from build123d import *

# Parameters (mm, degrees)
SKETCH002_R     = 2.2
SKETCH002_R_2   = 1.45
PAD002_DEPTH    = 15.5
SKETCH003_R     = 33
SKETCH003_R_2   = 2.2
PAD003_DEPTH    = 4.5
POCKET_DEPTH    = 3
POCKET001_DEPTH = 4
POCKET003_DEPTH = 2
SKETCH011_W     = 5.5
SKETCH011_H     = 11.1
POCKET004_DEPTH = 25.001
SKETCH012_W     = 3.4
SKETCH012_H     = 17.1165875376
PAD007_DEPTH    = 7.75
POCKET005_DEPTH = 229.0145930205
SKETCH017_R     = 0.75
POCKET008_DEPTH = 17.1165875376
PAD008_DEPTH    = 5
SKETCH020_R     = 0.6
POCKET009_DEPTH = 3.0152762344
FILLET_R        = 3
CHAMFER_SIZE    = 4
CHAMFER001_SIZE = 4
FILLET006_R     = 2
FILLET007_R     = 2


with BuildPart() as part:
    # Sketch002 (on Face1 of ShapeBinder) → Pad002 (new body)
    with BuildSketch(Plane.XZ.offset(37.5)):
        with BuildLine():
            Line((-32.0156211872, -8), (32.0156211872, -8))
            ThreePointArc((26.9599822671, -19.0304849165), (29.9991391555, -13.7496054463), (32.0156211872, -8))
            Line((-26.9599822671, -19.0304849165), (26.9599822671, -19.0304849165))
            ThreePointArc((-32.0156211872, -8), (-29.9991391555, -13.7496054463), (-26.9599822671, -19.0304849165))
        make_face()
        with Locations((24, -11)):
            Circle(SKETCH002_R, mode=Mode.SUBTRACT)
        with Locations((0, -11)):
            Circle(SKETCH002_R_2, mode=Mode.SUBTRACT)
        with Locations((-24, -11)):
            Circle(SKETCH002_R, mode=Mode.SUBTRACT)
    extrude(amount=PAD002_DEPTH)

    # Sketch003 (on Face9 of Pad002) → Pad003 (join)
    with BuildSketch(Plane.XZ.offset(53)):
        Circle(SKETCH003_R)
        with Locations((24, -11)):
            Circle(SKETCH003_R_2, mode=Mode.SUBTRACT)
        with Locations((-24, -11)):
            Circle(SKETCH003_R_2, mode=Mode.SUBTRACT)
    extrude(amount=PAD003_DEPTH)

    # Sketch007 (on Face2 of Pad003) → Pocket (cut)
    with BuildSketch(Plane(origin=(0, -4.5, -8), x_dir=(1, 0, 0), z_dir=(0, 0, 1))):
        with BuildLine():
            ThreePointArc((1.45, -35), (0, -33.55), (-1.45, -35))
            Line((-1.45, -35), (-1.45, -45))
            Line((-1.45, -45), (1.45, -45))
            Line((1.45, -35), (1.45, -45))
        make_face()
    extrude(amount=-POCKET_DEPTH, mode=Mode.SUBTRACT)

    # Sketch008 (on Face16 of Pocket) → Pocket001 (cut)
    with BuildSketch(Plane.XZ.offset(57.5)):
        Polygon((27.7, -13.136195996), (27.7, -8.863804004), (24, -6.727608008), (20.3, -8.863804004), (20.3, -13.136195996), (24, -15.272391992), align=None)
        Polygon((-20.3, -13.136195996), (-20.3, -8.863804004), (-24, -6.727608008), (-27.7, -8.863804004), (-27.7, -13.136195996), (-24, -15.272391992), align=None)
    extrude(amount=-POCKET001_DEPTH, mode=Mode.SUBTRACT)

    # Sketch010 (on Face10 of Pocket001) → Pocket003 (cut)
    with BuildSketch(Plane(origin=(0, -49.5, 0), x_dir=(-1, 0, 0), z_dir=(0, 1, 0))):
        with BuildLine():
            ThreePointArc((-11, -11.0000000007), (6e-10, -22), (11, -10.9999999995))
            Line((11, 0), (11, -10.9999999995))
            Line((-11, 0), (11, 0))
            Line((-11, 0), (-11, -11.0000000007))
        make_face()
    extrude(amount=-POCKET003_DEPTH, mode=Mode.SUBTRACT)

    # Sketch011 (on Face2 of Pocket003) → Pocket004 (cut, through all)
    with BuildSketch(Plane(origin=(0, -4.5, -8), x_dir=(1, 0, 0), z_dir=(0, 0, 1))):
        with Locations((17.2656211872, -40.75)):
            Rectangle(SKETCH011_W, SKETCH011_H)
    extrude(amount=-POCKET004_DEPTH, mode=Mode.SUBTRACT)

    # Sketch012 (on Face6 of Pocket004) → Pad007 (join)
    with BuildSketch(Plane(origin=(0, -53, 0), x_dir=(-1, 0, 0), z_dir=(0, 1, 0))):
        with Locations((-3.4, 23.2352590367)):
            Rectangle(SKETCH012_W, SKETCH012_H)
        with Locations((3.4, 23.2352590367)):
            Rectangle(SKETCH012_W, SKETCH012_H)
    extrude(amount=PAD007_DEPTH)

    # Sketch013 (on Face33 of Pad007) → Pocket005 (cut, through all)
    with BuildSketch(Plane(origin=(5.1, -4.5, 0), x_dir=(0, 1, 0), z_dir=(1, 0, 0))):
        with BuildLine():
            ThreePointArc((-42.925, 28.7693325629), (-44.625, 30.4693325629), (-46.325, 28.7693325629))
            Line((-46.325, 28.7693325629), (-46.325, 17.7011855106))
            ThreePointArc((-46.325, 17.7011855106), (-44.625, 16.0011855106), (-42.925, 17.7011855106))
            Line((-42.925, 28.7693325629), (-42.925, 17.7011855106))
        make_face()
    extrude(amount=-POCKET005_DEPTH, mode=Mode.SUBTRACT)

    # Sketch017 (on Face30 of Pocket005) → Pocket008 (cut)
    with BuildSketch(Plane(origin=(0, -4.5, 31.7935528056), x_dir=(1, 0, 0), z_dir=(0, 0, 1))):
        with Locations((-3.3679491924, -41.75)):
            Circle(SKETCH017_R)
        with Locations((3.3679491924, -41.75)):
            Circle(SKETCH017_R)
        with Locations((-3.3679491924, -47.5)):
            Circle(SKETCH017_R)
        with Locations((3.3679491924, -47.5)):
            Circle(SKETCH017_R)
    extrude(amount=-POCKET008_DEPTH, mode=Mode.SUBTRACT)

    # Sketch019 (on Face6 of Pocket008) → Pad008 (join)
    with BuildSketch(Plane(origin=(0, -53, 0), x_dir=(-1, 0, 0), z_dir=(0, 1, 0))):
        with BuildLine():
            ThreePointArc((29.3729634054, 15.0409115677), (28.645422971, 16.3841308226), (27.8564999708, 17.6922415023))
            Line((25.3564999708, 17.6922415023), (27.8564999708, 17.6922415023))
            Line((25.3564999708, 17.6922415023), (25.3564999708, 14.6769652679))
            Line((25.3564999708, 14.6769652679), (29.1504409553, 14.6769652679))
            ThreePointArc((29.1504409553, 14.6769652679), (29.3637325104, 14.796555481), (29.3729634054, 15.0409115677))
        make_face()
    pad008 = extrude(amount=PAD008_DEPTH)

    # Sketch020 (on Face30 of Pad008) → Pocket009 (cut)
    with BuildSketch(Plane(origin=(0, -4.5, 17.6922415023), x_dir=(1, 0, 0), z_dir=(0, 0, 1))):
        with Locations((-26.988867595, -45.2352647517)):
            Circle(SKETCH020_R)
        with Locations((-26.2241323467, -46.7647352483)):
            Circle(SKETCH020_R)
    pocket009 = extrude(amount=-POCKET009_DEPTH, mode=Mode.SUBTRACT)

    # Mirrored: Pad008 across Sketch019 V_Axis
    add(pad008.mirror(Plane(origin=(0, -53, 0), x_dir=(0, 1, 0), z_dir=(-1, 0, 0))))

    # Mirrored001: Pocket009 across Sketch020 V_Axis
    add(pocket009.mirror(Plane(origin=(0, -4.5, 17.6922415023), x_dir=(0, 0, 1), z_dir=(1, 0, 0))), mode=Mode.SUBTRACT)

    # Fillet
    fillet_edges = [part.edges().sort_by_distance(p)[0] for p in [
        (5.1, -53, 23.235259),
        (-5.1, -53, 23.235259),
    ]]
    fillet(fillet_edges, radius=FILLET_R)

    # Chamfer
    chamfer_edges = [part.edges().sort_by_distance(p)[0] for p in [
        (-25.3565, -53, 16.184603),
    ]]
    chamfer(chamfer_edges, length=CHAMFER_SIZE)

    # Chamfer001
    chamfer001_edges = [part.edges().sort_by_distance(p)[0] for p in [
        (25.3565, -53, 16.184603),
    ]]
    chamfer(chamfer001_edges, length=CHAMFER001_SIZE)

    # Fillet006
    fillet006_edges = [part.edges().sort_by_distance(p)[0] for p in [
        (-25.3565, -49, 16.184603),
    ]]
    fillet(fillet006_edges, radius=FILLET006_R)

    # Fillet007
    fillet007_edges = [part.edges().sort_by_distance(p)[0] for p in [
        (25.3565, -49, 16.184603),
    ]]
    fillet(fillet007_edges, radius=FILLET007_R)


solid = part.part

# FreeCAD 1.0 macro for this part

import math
import FreeCAD as App
import Part
import Sketcher

V = App.Vector
Q = App.Units.Quantity


def edges_at(feature, points):
    """Names of the edges that pass closest to the given points."""
    edges = feature.Shape.Edges
    near = lambda p: min(range(len(edges)), key=lambda i: edges[i].distToShape(Part.Vertex(*p))[0])
    return sorted({f"Edge{near(p) + 1}" for p in points})

doc = App.newDocument("Part")
body = doc.addObject("PartDesign::Body", "Body")

# Sketch on XZ plane
sketch1 = doc.addObject("Sketcher::SketchObject", "Sketch")
body.addObject(sketch1)
sketch1.AttachmentSupport = (doc.XZ_Plane, [""])
sketch1.MapMode = "FlatFace"
sketch1.AttachmentOffset = App.Placement(V(0, 0, 37.5), App.Rotation())
sketch1.addGeometry([
    Part.LineSegment(V(32, -8, 0), V(-32, -8, 0)),  # 0
    Part.ArcOfCircle(Part.Circle(V(0, 0, 0), V(0, 0, 1), 33), math.radians(-166), math.radians(-145)),  # 1
    Part.LineSegment(V(-27, -19, 0), V(27, -19, 0)),  # 2
    Part.ArcOfCircle(Part.Circle(V(0, 0, 0), V(0, 0, 1), 33), math.radians(-35), math.radians(-14)),  # 3
    Part.Circle(V(24, -11, 0), V(0, 0, 1), 2.2),  # 4
    Part.Circle(V(0, -11, 0), V(0, 0, 1), 1.4),  # 5
    Part.Circle(V(-24, -11, 0), V(0, 0, 1), 2.2),  # 6
], False)
sketch1.addConstraint([
    Sketcher.Constraint("Coincident", 0, 2, 1, 1),
    Sketcher.Constraint("Coincident", 1, 2, 2, 1),
    Sketcher.Constraint("Coincident", 2, 2, 3, 1),
    Sketcher.Constraint("Coincident", 3, 2, 0, 1),
    Sketcher.Constraint("Horizontal", 0),
    Sketcher.Constraint("Horizontal", 2),
    Sketcher.Constraint("Coincident", 1, 3, -1, 1),
    Sketcher.Constraint("Coincident", 3, 3, -1, 1),
    Sketcher.Constraint("Equal", 1, 3),
    Sketcher.Constraint("Equal", 4, 6),
    Sketcher.Constraint("Symmetric", 4, 3, 6, 3, -2),
    Sketcher.Constraint("PointOnObject", 5, 3, -2),
    Sketcher.Constraint("Horizontal", 4, 3, 5, 3),
    Sketcher.Constraint("Radius", 1, Q("33 mm")),
    Sketcher.Constraint("Diameter", 4, Q("4.4 mm")),
    Sketcher.Constraint("Diameter", 5, Q("2.9 mm")),
    Sketcher.Constraint("DistanceX", -1, 1, 4, 3, Q("24 mm")),
    Sketcher.Constraint("DistanceY", 4, 3, -1, 1, Q("11 mm")),
    Sketcher.Constraint("DistanceY", 0, 2, -1, 1, Q("8 mm")),
    Sketcher.Constraint("DistanceX", 2, 1, 2, 2, Q("53.919965 mm")),
])
pad1 = doc.addObject("PartDesign::Pad", "Pad")
body.addObject(pad1)
pad1.Profile = sketch1
pad1.Length = 15.5

# Sketch on XZ plane
sketch2 = doc.addObject("Sketcher::SketchObject", "Sketch001")
body.addObject(sketch2)
sketch2.AttachmentSupport = (doc.XZ_Plane, [""])
sketch2.MapMode = "FlatFace"
sketch2.AttachmentOffset = App.Placement(V(0, 0, 53), App.Rotation())
sketch2.addGeometry([
    Part.Circle(V(0, 0, 0), V(0, 0, 1), 33),
    Part.Circle(V(-24, -11, 0), V(0, 0, 1), 2.2),
    Part.Circle(V(24, -11, 0), V(0, 0, 1), 2.2),
], False)
sketch2.addConstraint([
    Sketcher.Constraint("Coincident", 0, 3, -1, 1),
    Sketcher.Constraint("Equal", 1, 2),
    Sketcher.Constraint("Symmetric", 1, 3, 2, 3, -2),
    Sketcher.Constraint("Diameter", 0, Q("66 mm")),
    Sketcher.Constraint("Diameter", 1, Q("4.4 mm")),
    Sketcher.Constraint("DistanceX", 1, 3, -1, 1, Q("24 mm")),
    Sketcher.Constraint("DistanceY", 1, 3, -1, 1, Q("11 mm")),
])
pad2 = doc.addObject("PartDesign::Pad", "Pad001")
body.addObject(pad2)
pad2.Profile = sketch2
pad2.Length = 4.5

# Sketch on XY plane
sketch3 = doc.addObject("Sketcher::SketchObject", "Sketch002")
body.addObject(sketch3)
sketch3.AttachmentSupport = (doc.XY_Plane, [""])
sketch3.MapMode = "FlatFace"
sketch3.AttachmentOffset = App.Placement(V(0, 0, -8), App.Rotation())
sketch3.addGeometry([
    Part.ArcOfCircle(Part.Circle(V(0, -39.5, 0), V(0, 0, 1), 1.4), math.radians(0), math.radians(180)),
    Part.LineSegment(V(-1.4, -39.5, 0), V(-1.4, -49.5, 0)),
    Part.LineSegment(V(-1.4, -49.5, 0), V(1.4, -49.5, 0)),
    Part.LineSegment(V(1.4, -49.5, 0), V(1.4, -39.5, 0)),
], False)
sketch3.addConstraint([
    Sketcher.Constraint("Tangent", 0, 2, 1, 1),
    Sketcher.Constraint("Coincident", 1, 2, 2, 1),
    Sketcher.Constraint("Coincident", 2, 2, 3, 1),
    Sketcher.Constraint("Tangent", 3, 2, 0, 1),
    Sketcher.Constraint("Vertical", 1),
    Sketcher.Constraint("Horizontal", 2),
    Sketcher.Constraint("Vertical", 3),
    Sketcher.Constraint("PointOnObject", 0, 3, -2),
    Sketcher.Constraint("DistanceY", 1, 2, 1, 1, Q("10 mm")),
    Sketcher.Constraint("Radius", 0, Q("1.45 mm")),
    Sketcher.Constraint("DistanceY", 0, 3, -1, 1, Q("39.5 mm")),
])
pocket1 = doc.addObject("PartDesign::Pocket", "Pocket")
body.addObject(pocket1)
pocket1.Profile = sketch3
pocket1.Length = 3

# Sketch on XZ plane
sketch4 = doc.addObject("Sketcher::SketchObject", "Sketch003")
body.addObject(sketch4)
sketch4.AttachmentSupport = (doc.XZ_Plane, [""])
sketch4.MapMode = "FlatFace"
sketch4.AttachmentOffset = App.Placement(V(0, 0, 57.5), App.Rotation())
sketch4.addGeometry([
    Part.LineSegment(V(27.7, -13.1, 0), V(27.7, -8.9, 0)),  # 0
    Part.LineSegment(V(27.7, -8.9, 0), V(24, -6.7, 0)),  # 1
    Part.LineSegment(V(24, -6.7, 0), V(20.3, -8.9, 0)),  # 2
    Part.LineSegment(V(20.3, -8.9, 0), V(20.3, -13.1, 0)),  # 3
    Part.LineSegment(V(20.3, -13.1, 0), V(24, -15.3, 0)),  # 4
    Part.LineSegment(V(24, -15.3, 0), V(27.7, -13.1, 0)),  # 5
    Part.LineSegment(V(-20.3, -13.1, 0), V(-20.3, -8.9, 0)),  # 6
    Part.LineSegment(V(-20.3, -8.9, 0), V(-24, -6.7, 0)),  # 7
    Part.LineSegment(V(-24, -6.7, 0), V(-27.7, -8.9, 0)),  # 8
    Part.LineSegment(V(-27.7, -8.9, 0), V(-27.7, -13.1, 0)),  # 9
    Part.LineSegment(V(-27.7, -13.1, 0), V(-24, -15.3, 0)),  # 10
    Part.LineSegment(V(-24, -15.3, 0), V(-20.3, -13.1, 0)),  # 11
], False)
sketch4.addConstraint([
    Sketcher.Constraint("Coincident", 0, 2, 1, 1),
    Sketcher.Constraint("Coincident", 1, 2, 2, 1),
    Sketcher.Constraint("Coincident", 2, 2, 3, 1),
    Sketcher.Constraint("Coincident", 3, 2, 4, 1),
    Sketcher.Constraint("Coincident", 4, 2, 5, 1),
    Sketcher.Constraint("Coincident", 5, 2, 0, 1),
    Sketcher.Constraint("Coincident", 6, 2, 7, 1),
    Sketcher.Constraint("Coincident", 7, 2, 8, 1),
    Sketcher.Constraint("Coincident", 8, 2, 9, 1),
    Sketcher.Constraint("Coincident", 9, 2, 10, 1),
    Sketcher.Constraint("Coincident", 10, 2, 11, 1),
    Sketcher.Constraint("Coincident", 11, 2, 6, 1),
    Sketcher.Constraint("Vertical", 0),
    Sketcher.Constraint("Vertical", 3),
    Sketcher.Constraint("Vertical", 6),
    Sketcher.Constraint("Vertical", 9),
    Sketcher.Constraint("Symmetric", 2, 2, 6, 2, -2),
    Sketcher.Constraint("Symmetric", 1, 2, 7, 2, -2),
    Sketcher.Constraint("Symmetric", 0, 2, 8, 2, -2),
    Sketcher.Constraint("Symmetric", 4, 2, 10, 2, -2),
    Sketcher.Constraint("Parallel", 1, 4),
    Sketcher.Constraint("Parallel", 2, 5),
    Sketcher.Constraint("Parallel", 4, 7),
    Sketcher.Constraint("Parallel", 7, 10),
    Sketcher.Constraint("Parallel", 8, 11),
    Sketcher.Constraint("Horizontal", 0, 2, 2, 2),
    Sketcher.Constraint("Horizontal", 3, 2, 5, 2),
    Sketcher.Constraint("Angle", 1, Q("150 deg")),
    Sketcher.Constraint("DistanceX", -1, 1, 1, 2, Q("24 mm")),
    Sketcher.Constraint("DistanceX", -1, 1, 0, 2, Q("27.7 mm")),
    Sketcher.Constraint("DistanceY", 0, 1, 0, 2, Q("4.272392 mm")),
    Sketcher.Constraint("DistanceY", 1, 2, -1, 1, Q("6.727608 mm")),
])
pocket2 = doc.addObject("PartDesign::Pocket", "Pocket001")
body.addObject(pocket2)
pocket2.Profile = sketch4
pocket2.Length = 4

# Sketch on XZ plane
sketch5 = doc.addObject("Sketcher::SketchObject", "Sketch004")
body.addObject(sketch5)
sketch5.AttachmentSupport = (doc.XZ_Plane, [""])
sketch5.MapMode = "FlatFace"
sketch5.AttachmentOffset = App.Placement(V(0, 0, 49.5), App.Rotation())
sketch5.addGeometry([
    Part.ArcOfCircle(Part.Circle(V(0, -11, 0), V(0, 0, 1), 11), math.radians(180), math.radians(360)),
    Part.LineSegment(V(-11, -11, 0), V(-11, 0, 0)),
    Part.LineSegment(V(-11, 0, 0), V(11, 0, 0)),
    Part.LineSegment(V(11, 0, 0), V(11, -11, 0)),
], False)
sketch5.addConstraint([
    Sketcher.Constraint("Tangent", 0, 1, 1, 1),
    Sketcher.Constraint("Coincident", 1, 2, 2, 1),
    Sketcher.Constraint("Coincident", 2, 2, 3, 1),
    Sketcher.Constraint("Tangent", 3, 2, 0, 2),
    Sketcher.Constraint("Vertical", 1),
    Sketcher.Constraint("Horizontal", 2),
    Sketcher.Constraint("Vertical", 3),
    Sketcher.Constraint("Symmetric", 1, 2, 2, 2, -1, 1),
    Sketcher.Constraint("Radius", 0, Q("11 mm")),
    Sketcher.Constraint("DistanceY", 1, 1, 1, 2, Q("11 mm")),
])
pocket3 = doc.addObject("PartDesign::Pocket", "Pocket002")
body.addObject(pocket3)
pocket3.Profile = sketch5
pocket3.Length = 2
pocket3.Reversed = True

# Sketch on XY plane
sketch6 = doc.addObject("Sketcher::SketchObject", "Sketch005")
body.addObject(sketch6)
sketch6.AttachmentSupport = (doc.XY_Plane, [""])
sketch6.MapMode = "FlatFace"
sketch6.AttachmentOffset = App.Placement(V(0, 0, -8), App.Rotation())
sketch6.addGeometry([
    Part.LineSegment(V(15, -40, 0), V(15, -51, 0)),
    Part.LineSegment(V(15, -51, 0), V(20, -51, 0)),
    Part.LineSegment(V(20, -51, 0), V(20, -40, 0)),
    Part.LineSegment(V(20, -40, 0), V(15, -40, 0)),
], False)
sketch6.addConstraint([
    Sketcher.Constraint("Coincident", 0, 2, 1, 1),
    Sketcher.Constraint("Coincident", 1, 2, 2, 1),
    Sketcher.Constraint("Coincident", 2, 2, 3, 1),
    Sketcher.Constraint("Coincident", 3, 2, 0, 1),
    Sketcher.Constraint("Vertical", 0),
    Sketcher.Constraint("Horizontal", 1),
    Sketcher.Constraint("Vertical", 2),
    Sketcher.Constraint("Horizontal", 3),
    Sketcher.Constraint("DistanceX", 1, 1, 1, 2, Q("5.5 mm")),
    Sketcher.Constraint("DistanceY", 0, 2, 0, 1, Q("11.1 mm")),
    Sketcher.Constraint("DistanceY", 0, 2, -1, 1, Q("50.8 mm")),
    Sketcher.Constraint("DistanceX", -1, 1, 0, 2, Q("14.515621 mm")),
])
pocket4 = doc.addObject("PartDesign::Pocket", "Pocket003")
body.addObject(pocket4)
pocket4.Profile = sketch6
pocket4.Type = "ThroughAll"

# Sketch on XZ plane
sketch7 = doc.addObject("Sketcher::SketchObject", "Sketch006")
body.addObject(sketch7)
sketch7.AttachmentSupport = (doc.XZ_Plane, [""])
sketch7.MapMode = "FlatFace"
sketch7.AttachmentOffset = App.Placement(V(0, 0, 53), App.Rotation())
sketch7.addGeometry([
    Part.LineSegment(V(5.1, 31.8, 0), V(5.1, 14.7, 0)),  # 0
    Part.LineSegment(V(5.1, 14.7, 0), V(1.7, 14.7, 0)),  # 1
    Part.LineSegment(V(1.7, 14.7, 0), V(1.7, 31.8, 0)),  # 2
    Part.LineSegment(V(1.7, 31.8, 0), V(5.1, 31.8, 0)),  # 3
    Part.LineSegment(V(-1.7, 31.8, 0), V(-1.7, 14.7, 0)),  # 4
    Part.LineSegment(V(-1.7, 14.7, 0), V(-5.1, 14.7, 0)),  # 5
    Part.LineSegment(V(-5.1, 14.7, 0), V(-5.1, 31.8, 0)),  # 6
    Part.LineSegment(V(-5.1, 31.8, 0), V(-1.7, 31.8, 0)),  # 7
], False)
sketch7.addConstraint([
    Sketcher.Constraint("Coincident", 0, 2, 1, 1),
    Sketcher.Constraint("Coincident", 1, 2, 2, 1),
    Sketcher.Constraint("Coincident", 2, 2, 3, 1),
    Sketcher.Constraint("Coincident", 3, 2, 0, 1),
    Sketcher.Constraint("Coincident", 4, 2, 5, 1),
    Sketcher.Constraint("Coincident", 5, 2, 6, 1),
    Sketcher.Constraint("Coincident", 6, 2, 7, 1),
    Sketcher.Constraint("Coincident", 7, 2, 4, 1),
    Sketcher.Constraint("Vertical", 0),
    Sketcher.Constraint("Horizontal", 1),
    Sketcher.Constraint("Vertical", 2),
    Sketcher.Constraint("Horizontal", 3),
    Sketcher.Constraint("Vertical", 4),
    Sketcher.Constraint("Horizontal", 5),
    Sketcher.Constraint("Vertical", 6),
    Sketcher.Constraint("Horizontal", 7),
    Sketcher.Constraint("Symmetric", 1, 2, 4, 2, -2),
    Sketcher.Constraint("Symmetric", 3, 2, 6, 2, -2),
    Sketcher.Constraint("DistanceX", 1, 2, 1, 1, Q("3.4 mm")),
    Sketcher.Constraint("DistanceX", -1, 1, 0, 2, Q("5.1 mm")),
    Sketcher.Constraint("DistanceY", 0, 2, 0, 1, Q("17.116588 mm")),
    Sketcher.Constraint("DistanceY", -1, 1, 0, 2, Q("14.676965 mm")),
])
pad3 = doc.addObject("PartDesign::Pad", "Pad002")
body.addObject(pad3)
pad3.Profile = sketch7
pad3.Length = 7.75
pad3.Reversed = True

# Sketch on YZ plane
sketch8 = doc.addObject("Sketcher::SketchObject", "Sketch007")
body.addObject(sketch8)
sketch8.AttachmentSupport = (doc.YZ_Plane, [""])
sketch8.MapMode = "FlatFace"
sketch8.AttachmentOffset = App.Placement(V(0, 0, 5.1), App.Rotation())
sketch8.addGeometry([
    Part.ArcOfCircle(Part.Circle(V(-49.1, 28.8, 0), V(0, 0, 1), 1.7), math.radians(0), math.radians(180)),
    Part.LineSegment(V(-50.8, 28.8, 0), V(-50.8, 17.7, 0)),
    Part.ArcOfCircle(Part.Circle(V(-49.1, 17.7, 0), V(0, 0, 1), 1.7), math.radians(180), math.radians(360)),
    Part.LineSegment(V(-47.4, 17.7, 0), V(-47.4, 28.8, 0)),
], False)
sketch8.addConstraint([
    Sketcher.Constraint("Tangent", 0, 2, 1, 1),
    Sketcher.Constraint("Tangent", 1, 2, 2, 1),
    Sketcher.Constraint("Tangent", 2, 2, 3, 1),
    Sketcher.Constraint("Tangent", 3, 2, 0, 1),
    Sketcher.Constraint("Vertical", 1),
    Sketcher.Constraint("Vertical", 3),
    Sketcher.Constraint("Radius", 0, Q("1.7 mm")),
    Sketcher.Constraint("DistanceX", 0, 3, -1, 1, Q("49.125 mm")),
    Sketcher.Constraint("DistanceY", 1, 2, 1, 1, Q("11.068147 mm")),
    Sketcher.Constraint("DistanceY", -1, 1, 0, 3, Q("28.769333 mm")),
])
pocket5 = doc.addObject("PartDesign::Pocket", "Pocket004")
body.addObject(pocket5)
pocket5.Profile = sketch8
pocket5.Type = "ThroughAll"

# Sketch on XY plane
sketch9 = doc.addObject("Sketcher::SketchObject", "Sketch008")
body.addObject(sketch9)
sketch9.AttachmentSupport = (doc.XY_Plane, [""])
sketch9.MapMode = "FlatFace"
sketch9.AttachmentOffset = App.Placement(V(0, 0, 31.793553), App.Rotation())
sketch9.addGeometry([
    Part.Circle(V(-3.4, -46.2, 0), V(0, 0, 1), 0.8),
    Part.Circle(V(3.4, -46.2, 0), V(0, 0, 1), 0.8),
    Part.Circle(V(-3.4, -52, 0), V(0, 0, 1), 0.8),
    Part.Circle(V(3.4, -52, 0), V(0, 0, 1), 0.8),
], False)
sketch9.addConstraint([
    Sketcher.Constraint("Equal", 0, 1),
    Sketcher.Constraint("Equal", 1, 2),
    Sketcher.Constraint("Equal", 2, 3),
    Sketcher.Constraint("Symmetric", 0, 3, 1, 3, -2),
    Sketcher.Constraint("Symmetric", 2, 3, 3, 3, -2),
    Sketcher.Constraint("Vertical", 0, 3, 2, 3),
    Sketcher.Constraint("Diameter", 0, Q("1.5 mm")),
    Sketcher.Constraint("DistanceY", 2, 3, -1, 1, Q("52 mm")),
    Sketcher.Constraint("DistanceY", 0, 3, -1, 1, Q("46.25 mm")),
    Sketcher.Constraint("DistanceX", 0, 3, 1, 3, Q("6.735898 mm")),
])
pocket6 = doc.addObject("PartDesign::Pocket", "Pocket005")
body.addObject(pocket6)
pocket6.Profile = sketch9
pocket6.Length = 17.116588

# Sketch on XZ plane
sketch10 = doc.addObject("Sketcher::SketchObject", "Sketch009")
body.addObject(sketch10)
sketch10.AttachmentSupport = (doc.XZ_Plane, [""])
sketch10.MapMode = "FlatFace"
sketch10.AttachmentOffset = App.Placement(V(0, 0, 53), App.Rotation())
sketch10.addGeometry([
    Part.ArcOfCircle(Part.Circle(V(0, 0, 0), V(0, 0, 1), 33), math.radians(147.58), math.radians(152.88)),  # 0
    Part.LineSegment(V(-27.86, 17.69, 0), V(-25.36, 17.69, 0)),  # 1
    Part.LineSegment(V(-25.36, 17.69, 0), V(-25.36, 14.68, 0)),  # 2
    Part.LineSegment(V(-25.36, 14.68, 0), V(-29.15, 14.68, 0)),  # 3
    Part.ArcOfCircle(Part.Circle(V(-29.15, 14.93, 0), V(0, 0, 1), 0.25), math.radians(153), math.radians(270)),  # 4
], False)
sketch10.addConstraint([
    Sketcher.Constraint("Coincident", 0, 1, 1, 1),
    Sketcher.Constraint("Coincident", 1, 2, 2, 1),
    Sketcher.Constraint("Coincident", 2, 2, 3, 1),
    Sketcher.Constraint("Tangent", 3, 2, 4, 2),
    Sketcher.Constraint("Tangent", 4, 1, 0, 2),
    Sketcher.Constraint("Horizontal", 1),
    Sketcher.Constraint("Vertical", 2),
    Sketcher.Constraint("Horizontal", 3),
    Sketcher.Constraint("Coincident", 0, 3, -1, 1),
    Sketcher.Constraint("Radius", 0, Q("33 mm")),
    Sketcher.Constraint("Radius", 4, Q("0.25 mm")),
    Sketcher.Constraint("DistanceX", 1, 1, 1, 2, Q("2.5 mm")),
    Sketcher.Constraint("DistanceX", 3, 2, 3, 1, Q("3.793941 mm")),
    Sketcher.Constraint("DistanceX", 0, 1, -1, 1, Q("27.8565 mm")),
])
pad4 = doc.addObject("PartDesign::Pad", "Pad003")
body.addObject(pad4)
pad4.Profile = sketch10
pad4.Length = 5
pad4.Reversed = True

# Sketch on XY plane
sketch11 = doc.addObject("Sketcher::SketchObject", "Sketch010")
body.addObject(sketch11)
sketch11.AttachmentSupport = (doc.XY_Plane, [""])
sketch11.MapMode = "FlatFace"
sketch11.AttachmentOffset = App.Placement(V(0, 0, 17.692242), App.Rotation())
sketch11.addGeometry([
    Part.Circle(V(-27, -49.7, 0), V(0, 0, 1), 0.6),
    Part.Circle(V(-26.2, -51.3, 0), V(0, 0, 1), 0.6),
], False)
sketch11.addConstraint([
    Sketcher.Constraint("Equal", 0, 1),
    Sketcher.Constraint("Diameter", 0, Q("1.2 mm")),
    Sketcher.Constraint("DistanceY", 1, 3, 0, 3, Q("1.52947 mm")),
    Sketcher.Constraint("DistanceX", 0, 3, -1, 1, Q("26.988868 mm")),
    Sketcher.Constraint("DistanceY", 0, 3, -1, 1, Q("49.735265 mm")),
    Sketcher.Constraint("DistanceX", 1, 3, -1, 1, Q("26.224132 mm")),
])
pocket7 = doc.addObject("PartDesign::Pocket", "Pocket006")
body.addObject(pocket7)
pocket7.Profile = sketch11
pocket7.Length = 3.015276
doc.recompute()

mirrored = doc.addObject("PartDesign::Mirrored", "Mirrored")
body.addObject(mirrored)
mirrored.Originals = [pad4]
mirrored.MirrorPlane = (doc.YZ_Plane, [""])
body.Tip = mirrored
doc.recompute()

mirrored2 = doc.addObject("PartDesign::Mirrored", "Mirrored001")
body.addObject(mirrored2)
mirrored2.Originals = [pocket7]
mirrored2.MirrorPlane = (doc.YZ_Plane, [""])
body.Tip = mirrored2
doc.recompute()

fillet = doc.addObject("PartDesign::Fillet", "Fillet")
body.addObject(fillet)
fillet.Base = (mirrored2, edges_at(mirrored2, [(5.1, -53, 23.235), (-5.1, -53, 23.235)]))
fillet.Radius = 3
doc.recompute()

chamfer = doc.addObject("PartDesign::Chamfer", "Chamfer")
body.addObject(chamfer)
chamfer.Base = (fillet, edges_at(fillet, [(-25.356, -53, 16.185)]))
chamfer.Size = 4
doc.recompute()

chamfer2 = doc.addObject("PartDesign::Chamfer", "Chamfer001")
body.addObject(chamfer2)
chamfer2.Base = (chamfer, edges_at(chamfer, [(25.356, -53, 16.185)]))
chamfer2.Size = 4
doc.recompute()

fillet2 = doc.addObject("PartDesign::Fillet", "Fillet001")
body.addObject(fillet2)
fillet2.Base = (chamfer2, edges_at(chamfer2, [(-25.356, -49, 16.185)]))
fillet2.Radius = 2
doc.recompute()

fillet3 = doc.addObject("PartDesign::Fillet", "Fillet002")
body.addObject(fillet3)
fillet3.Base = (fillet2, edges_at(fillet2, [(25.356, -49, 16.185)]))
fillet3.Radius = 2

doc.recompute()
